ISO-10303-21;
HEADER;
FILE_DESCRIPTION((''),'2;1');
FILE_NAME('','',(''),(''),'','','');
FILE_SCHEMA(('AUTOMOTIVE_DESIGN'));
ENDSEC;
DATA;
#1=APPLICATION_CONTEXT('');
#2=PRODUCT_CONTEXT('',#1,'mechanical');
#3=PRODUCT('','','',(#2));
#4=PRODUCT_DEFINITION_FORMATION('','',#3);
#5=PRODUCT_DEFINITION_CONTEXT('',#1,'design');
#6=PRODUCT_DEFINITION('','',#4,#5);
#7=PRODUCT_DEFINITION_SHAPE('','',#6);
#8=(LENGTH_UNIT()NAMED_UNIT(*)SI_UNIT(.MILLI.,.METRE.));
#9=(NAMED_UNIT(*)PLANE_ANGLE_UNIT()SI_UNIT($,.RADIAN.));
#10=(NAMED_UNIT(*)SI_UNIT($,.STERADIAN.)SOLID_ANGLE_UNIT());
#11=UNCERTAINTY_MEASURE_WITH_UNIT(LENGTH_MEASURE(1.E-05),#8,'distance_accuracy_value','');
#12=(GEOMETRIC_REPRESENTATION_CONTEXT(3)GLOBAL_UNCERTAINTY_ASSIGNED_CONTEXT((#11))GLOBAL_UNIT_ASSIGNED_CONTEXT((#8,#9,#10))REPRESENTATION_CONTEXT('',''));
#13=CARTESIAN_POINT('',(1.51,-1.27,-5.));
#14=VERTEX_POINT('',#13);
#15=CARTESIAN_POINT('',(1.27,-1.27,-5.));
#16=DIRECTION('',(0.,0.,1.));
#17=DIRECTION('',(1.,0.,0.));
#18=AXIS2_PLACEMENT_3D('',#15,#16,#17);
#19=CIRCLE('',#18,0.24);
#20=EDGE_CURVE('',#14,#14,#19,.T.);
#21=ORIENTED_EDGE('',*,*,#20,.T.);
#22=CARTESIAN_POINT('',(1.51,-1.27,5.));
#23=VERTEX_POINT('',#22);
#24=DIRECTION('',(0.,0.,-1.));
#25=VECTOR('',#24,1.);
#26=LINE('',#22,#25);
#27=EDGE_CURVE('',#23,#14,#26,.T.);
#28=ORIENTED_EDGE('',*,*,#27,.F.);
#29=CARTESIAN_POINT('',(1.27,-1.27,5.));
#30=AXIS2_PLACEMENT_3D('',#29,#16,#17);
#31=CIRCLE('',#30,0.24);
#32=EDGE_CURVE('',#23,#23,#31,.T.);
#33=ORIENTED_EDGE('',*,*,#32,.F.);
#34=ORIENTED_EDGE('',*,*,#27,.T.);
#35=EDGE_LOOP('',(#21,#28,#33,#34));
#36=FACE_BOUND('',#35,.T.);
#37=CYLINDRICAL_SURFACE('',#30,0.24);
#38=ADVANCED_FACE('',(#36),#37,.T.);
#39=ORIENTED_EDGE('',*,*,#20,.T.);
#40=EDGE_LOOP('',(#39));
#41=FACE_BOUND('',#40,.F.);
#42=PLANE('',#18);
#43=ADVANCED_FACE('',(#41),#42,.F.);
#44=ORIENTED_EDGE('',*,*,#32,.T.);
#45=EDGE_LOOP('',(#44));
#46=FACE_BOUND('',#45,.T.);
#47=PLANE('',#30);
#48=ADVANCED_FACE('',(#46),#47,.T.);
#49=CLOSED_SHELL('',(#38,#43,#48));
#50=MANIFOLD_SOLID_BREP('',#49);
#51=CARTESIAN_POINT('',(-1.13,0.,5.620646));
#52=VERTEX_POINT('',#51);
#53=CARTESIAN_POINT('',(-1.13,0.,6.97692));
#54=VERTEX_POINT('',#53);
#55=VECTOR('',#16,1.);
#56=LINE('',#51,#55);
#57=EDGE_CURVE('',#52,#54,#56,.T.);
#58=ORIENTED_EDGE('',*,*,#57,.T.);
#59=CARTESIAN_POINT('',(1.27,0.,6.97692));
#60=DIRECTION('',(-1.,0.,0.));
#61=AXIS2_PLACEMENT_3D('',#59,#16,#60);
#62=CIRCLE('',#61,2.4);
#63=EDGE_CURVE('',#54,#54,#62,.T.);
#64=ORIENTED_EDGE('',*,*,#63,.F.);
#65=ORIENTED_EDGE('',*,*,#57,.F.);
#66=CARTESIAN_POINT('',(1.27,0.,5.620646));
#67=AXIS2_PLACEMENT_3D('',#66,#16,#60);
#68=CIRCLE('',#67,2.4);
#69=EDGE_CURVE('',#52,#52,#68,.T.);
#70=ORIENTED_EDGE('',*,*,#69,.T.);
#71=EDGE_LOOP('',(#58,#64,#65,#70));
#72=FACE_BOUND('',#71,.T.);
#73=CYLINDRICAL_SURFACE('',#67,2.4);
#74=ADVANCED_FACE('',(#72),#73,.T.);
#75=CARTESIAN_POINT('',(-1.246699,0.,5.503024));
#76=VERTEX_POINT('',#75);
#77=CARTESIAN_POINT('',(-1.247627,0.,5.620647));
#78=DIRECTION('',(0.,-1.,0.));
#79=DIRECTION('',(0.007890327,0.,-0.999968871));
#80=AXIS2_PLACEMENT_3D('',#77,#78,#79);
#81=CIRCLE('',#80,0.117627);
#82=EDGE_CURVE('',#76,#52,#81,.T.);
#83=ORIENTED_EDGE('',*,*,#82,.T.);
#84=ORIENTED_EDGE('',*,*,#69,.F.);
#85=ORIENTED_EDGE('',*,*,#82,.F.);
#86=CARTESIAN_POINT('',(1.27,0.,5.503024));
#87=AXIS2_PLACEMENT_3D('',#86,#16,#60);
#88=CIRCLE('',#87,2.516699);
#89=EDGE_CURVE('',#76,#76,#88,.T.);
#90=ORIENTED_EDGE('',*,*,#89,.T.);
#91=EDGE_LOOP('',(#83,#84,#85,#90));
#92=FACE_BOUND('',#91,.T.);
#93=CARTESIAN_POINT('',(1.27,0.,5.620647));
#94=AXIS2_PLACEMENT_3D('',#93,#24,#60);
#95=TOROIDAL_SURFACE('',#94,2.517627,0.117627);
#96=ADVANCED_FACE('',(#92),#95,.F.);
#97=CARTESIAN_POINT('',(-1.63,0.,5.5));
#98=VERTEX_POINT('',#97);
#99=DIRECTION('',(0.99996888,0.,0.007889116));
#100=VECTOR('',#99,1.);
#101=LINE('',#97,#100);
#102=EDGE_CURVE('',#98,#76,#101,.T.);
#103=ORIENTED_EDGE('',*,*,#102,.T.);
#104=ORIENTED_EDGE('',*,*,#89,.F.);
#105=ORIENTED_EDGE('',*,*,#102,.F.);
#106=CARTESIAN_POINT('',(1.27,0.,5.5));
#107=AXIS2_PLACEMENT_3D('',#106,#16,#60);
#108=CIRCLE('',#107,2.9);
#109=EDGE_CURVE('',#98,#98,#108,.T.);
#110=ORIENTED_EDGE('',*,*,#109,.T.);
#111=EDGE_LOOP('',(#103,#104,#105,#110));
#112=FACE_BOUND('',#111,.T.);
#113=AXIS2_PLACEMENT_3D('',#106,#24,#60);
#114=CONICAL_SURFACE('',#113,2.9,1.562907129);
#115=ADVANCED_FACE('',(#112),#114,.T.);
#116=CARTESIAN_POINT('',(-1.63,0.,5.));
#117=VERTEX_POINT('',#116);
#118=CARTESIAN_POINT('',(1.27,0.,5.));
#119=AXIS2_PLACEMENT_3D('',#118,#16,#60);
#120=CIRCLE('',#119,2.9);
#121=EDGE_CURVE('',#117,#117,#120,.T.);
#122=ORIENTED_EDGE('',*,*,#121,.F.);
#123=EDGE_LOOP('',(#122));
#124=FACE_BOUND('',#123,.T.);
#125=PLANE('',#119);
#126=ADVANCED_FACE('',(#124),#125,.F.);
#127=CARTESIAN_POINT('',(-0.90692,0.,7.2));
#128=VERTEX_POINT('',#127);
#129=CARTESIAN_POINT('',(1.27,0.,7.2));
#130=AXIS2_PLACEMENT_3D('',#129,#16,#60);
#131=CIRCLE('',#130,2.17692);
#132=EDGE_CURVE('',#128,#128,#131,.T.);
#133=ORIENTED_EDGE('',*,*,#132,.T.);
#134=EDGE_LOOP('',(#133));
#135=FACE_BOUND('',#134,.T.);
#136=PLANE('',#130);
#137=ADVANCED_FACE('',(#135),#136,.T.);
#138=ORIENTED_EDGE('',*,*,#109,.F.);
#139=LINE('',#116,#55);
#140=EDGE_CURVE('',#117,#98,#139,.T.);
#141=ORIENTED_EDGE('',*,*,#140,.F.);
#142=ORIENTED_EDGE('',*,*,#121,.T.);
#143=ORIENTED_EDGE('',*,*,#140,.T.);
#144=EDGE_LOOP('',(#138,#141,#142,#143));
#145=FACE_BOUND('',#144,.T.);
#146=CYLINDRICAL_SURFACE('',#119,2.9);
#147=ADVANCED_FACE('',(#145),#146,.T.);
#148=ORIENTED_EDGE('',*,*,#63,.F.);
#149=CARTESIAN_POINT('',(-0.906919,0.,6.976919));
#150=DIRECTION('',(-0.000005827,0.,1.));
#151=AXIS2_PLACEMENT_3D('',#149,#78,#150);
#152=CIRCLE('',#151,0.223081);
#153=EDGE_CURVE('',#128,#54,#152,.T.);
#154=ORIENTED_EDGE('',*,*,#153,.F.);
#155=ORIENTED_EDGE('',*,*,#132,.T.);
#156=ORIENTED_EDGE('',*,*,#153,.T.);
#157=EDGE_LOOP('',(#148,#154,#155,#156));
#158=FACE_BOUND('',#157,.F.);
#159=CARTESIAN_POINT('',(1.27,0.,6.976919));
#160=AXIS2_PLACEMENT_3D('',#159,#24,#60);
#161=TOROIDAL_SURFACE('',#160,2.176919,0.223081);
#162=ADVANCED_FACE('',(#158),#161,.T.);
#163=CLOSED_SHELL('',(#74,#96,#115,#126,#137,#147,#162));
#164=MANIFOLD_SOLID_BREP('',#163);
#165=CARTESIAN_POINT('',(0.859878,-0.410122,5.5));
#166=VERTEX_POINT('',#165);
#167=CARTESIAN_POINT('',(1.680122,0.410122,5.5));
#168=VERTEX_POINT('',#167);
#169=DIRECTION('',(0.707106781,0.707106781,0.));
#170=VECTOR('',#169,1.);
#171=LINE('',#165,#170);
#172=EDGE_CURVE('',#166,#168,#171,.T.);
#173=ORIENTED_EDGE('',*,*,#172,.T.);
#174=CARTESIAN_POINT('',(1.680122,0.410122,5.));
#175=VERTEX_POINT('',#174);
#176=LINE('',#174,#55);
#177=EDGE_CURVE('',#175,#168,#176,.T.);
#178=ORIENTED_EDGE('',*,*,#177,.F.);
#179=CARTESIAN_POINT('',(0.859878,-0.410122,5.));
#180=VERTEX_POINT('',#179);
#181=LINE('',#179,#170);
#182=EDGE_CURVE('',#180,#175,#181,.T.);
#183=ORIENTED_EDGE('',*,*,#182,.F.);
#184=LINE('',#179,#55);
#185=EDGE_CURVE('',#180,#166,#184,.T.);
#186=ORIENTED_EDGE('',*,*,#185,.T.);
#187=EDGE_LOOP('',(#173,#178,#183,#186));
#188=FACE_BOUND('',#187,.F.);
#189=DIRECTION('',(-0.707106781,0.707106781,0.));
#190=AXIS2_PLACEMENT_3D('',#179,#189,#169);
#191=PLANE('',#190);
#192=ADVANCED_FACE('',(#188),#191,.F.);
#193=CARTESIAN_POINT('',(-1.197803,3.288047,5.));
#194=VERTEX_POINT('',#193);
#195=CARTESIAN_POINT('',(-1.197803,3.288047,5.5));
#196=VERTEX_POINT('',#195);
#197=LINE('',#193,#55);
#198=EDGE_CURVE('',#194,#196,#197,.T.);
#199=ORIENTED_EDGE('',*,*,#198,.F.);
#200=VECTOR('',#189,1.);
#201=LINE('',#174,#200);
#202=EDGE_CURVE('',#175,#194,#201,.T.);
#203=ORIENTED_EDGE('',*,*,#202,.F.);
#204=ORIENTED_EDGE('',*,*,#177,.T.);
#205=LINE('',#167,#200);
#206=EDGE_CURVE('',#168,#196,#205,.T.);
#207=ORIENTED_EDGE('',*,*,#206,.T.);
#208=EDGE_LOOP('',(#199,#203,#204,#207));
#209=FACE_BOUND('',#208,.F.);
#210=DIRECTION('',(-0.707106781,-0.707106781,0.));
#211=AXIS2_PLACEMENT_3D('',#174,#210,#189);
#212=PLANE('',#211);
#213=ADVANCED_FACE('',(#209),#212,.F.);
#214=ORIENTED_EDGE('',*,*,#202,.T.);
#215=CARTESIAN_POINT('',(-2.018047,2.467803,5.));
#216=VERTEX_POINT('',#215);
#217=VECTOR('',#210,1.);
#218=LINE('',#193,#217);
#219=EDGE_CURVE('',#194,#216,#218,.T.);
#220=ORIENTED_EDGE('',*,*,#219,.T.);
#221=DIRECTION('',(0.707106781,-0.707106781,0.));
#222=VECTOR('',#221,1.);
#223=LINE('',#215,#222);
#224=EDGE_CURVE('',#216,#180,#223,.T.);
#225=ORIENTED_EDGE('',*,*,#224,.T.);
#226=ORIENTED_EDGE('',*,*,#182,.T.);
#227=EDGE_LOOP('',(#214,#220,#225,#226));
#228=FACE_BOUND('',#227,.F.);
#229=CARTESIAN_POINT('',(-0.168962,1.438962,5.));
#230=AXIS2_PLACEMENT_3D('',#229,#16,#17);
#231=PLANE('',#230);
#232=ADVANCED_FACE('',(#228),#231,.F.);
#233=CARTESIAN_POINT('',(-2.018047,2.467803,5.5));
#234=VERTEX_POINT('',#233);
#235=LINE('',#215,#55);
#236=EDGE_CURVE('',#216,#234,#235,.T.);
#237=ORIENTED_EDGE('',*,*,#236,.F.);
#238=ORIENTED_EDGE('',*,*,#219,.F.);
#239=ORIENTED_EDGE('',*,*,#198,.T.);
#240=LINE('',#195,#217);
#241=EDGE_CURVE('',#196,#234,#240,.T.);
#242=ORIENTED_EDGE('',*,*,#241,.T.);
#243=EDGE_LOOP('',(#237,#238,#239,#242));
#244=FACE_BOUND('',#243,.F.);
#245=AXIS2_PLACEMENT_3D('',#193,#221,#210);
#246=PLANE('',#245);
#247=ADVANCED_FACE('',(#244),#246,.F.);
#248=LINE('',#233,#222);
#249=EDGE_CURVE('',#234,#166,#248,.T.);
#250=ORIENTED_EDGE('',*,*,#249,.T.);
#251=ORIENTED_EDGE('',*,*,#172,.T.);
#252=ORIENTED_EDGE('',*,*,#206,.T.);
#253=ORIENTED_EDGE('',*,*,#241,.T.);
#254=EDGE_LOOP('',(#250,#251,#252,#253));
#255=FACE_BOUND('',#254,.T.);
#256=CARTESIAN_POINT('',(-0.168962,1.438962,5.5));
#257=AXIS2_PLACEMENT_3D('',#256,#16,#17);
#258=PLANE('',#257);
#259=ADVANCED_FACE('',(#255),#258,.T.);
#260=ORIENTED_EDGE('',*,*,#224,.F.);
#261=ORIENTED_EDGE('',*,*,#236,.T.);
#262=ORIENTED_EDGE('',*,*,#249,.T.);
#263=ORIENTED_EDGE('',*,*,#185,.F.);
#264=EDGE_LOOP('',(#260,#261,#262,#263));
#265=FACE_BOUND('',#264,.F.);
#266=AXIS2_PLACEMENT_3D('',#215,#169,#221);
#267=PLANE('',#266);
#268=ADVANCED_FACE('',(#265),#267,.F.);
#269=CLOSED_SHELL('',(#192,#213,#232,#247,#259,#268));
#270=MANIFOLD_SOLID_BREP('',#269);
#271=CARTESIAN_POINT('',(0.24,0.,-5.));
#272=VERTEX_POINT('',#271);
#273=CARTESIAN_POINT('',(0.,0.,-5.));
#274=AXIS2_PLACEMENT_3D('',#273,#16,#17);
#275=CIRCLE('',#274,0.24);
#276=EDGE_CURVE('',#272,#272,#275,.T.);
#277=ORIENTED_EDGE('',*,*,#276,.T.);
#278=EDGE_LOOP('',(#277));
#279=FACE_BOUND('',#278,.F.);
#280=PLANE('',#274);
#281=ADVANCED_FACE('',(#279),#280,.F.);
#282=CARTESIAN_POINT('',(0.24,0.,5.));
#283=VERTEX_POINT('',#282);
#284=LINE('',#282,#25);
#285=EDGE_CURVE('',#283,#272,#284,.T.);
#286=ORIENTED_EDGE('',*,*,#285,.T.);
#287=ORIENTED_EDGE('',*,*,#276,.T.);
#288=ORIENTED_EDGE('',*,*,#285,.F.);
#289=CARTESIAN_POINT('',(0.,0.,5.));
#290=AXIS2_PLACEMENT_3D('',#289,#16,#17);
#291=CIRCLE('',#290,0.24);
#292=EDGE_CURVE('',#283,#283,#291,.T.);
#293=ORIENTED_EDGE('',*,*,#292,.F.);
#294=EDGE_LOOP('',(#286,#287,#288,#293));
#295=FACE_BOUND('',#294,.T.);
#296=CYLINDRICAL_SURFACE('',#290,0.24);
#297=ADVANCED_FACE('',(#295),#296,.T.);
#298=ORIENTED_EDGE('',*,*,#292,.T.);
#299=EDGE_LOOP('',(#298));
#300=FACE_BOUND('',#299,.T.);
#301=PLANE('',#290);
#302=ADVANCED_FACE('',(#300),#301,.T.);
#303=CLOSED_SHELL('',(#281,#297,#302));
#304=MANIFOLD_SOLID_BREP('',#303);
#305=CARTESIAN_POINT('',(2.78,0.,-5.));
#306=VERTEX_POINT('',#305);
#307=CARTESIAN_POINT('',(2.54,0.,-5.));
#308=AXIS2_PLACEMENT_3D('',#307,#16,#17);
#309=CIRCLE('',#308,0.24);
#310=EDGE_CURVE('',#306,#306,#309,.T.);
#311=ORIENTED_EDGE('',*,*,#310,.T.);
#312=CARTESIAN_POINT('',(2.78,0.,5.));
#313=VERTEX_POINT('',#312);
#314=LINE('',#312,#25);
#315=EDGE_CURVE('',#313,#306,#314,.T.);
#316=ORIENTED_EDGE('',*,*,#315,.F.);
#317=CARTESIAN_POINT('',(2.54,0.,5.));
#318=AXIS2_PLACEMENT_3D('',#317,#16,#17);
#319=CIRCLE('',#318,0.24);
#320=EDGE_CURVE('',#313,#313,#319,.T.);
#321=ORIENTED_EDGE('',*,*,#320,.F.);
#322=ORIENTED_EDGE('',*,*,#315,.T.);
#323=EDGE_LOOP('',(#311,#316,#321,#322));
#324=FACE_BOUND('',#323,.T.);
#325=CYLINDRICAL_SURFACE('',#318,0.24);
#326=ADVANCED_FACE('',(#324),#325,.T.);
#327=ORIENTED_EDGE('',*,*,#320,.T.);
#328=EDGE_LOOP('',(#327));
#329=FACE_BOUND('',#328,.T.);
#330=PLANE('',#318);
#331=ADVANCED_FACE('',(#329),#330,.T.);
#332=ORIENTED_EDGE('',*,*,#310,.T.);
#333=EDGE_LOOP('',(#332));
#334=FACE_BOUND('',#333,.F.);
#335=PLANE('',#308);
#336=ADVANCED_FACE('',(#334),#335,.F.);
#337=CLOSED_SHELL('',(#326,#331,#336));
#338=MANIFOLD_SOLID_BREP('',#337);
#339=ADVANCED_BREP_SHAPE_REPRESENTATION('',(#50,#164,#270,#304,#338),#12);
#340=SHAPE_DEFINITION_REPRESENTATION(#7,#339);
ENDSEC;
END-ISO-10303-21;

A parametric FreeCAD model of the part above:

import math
import FreeCAD as App
import Part
import Sketcher
Q = App.Units.Quantity

doc = App.newDocument("Part")
body = doc.addObject("PartDesign::Body", "Body")
body.AllowCompound = True

# Sketch on XY plane
sketch1 = body.newObject("Sketcher::SketchObject", "Sketch")
sketch1.AttachmentSupport = (doc.getObject("XY_Plane"), [""])
sketch1.MapMode = "FlatFace"
sketch1.AttachmentOffset = App.Placement(App.Vector(0, 0, 5), App.Rotation())
sketch1.addGeometry(Part.Circle(App.Vector(0, 0, 0), App.Vector(0, 0, 1), 0.24), False)
sketch1.addGeometry(Part.Circle(App.Vector(2.54, 0, 0), App.Vector(0, 0, 1), 0.24), False)
sketch1.addGeometry(Part.Circle(App.Vector(1.27, -1.27, 0), App.Vector(0, 0, 1), 0.24), False)
sketch1.addConstraint(Sketcher.Constraint("Coincident", 0, 3, -1, 1))
sketch1.addConstraint(Sketcher.Constraint("Equal", 0, 1))
sketch1.addConstraint(Sketcher.Constraint("Equal", 1, 2))
sketch1.addConstraint(Sketcher.Constraint("PointOnObject", 1, 3, -1))
sketch1.addConstraint(Sketcher.Constraint("Diameter", 0, 0.48))
sketch1.addConstraint(Sketcher.Constraint("DistanceX", -1, 1, 1, 3, 2.54))
sketch1.addConstraint(Sketcher.Constraint("DistanceX", -1, 1, 2, 3, 1.27))
sketch1.addConstraint(Sketcher.Constraint("DistanceY", 2, 3, -1, 1, 1.27))
pad1 = body.newObject("PartDesign::Pad", "Pad")
pad1.Profile = sketch1
pad1.Length = 10
pad1.Reversed = True
body2 = doc.addObject("PartDesign::Body", "Body001")

# Sketch on XZ plane
sketch2 = body2.newObject("Sketcher::SketchObject", "Sketch001")
sketch2.AttachmentSupport = (doc.getObject("XZ_Plane001"), [""])
sketch2.MapMode = "FlatFace"
sketch2.addGeometry(Part.LineSegment(App.Vector(-1.63, 5, 0), App.Vector(1.27, 5, 0)), False)
sketch2.addGeometry(Part.LineSegment(App.Vector(1.27, 5, 0), App.Vector(1.27, 7.2, 0)), False)
sketch2.addGeometry(Part.LineSegment(App.Vector(1.27, 7.2, 0), App.Vector(-0.90692, 7.2, 0)), False)
sketch2.addGeometry(Part.ArcOfCircle(Part.Circle(App.Vector(-0.906919, 6.976919, 0), App.Vector(0, 0, 1), 0.223081), math.radians(90.000334), math.radians(179.999666)), False)
sketch2.addGeometry(Part.LineSegment(App.Vector(-1.13, 6.97692, 0), App.Vector(-1.13, 5.620646, 0)), False)
sketch2.addGeometry(Part.ArcOfCircle(Part.Circle(App.Vector(-1.247627, 5.620647, 0), App.Vector(0, 0, 1), 0.117627), math.radians(-89.547913), math.radians(-0.000709)), False)
sketch2.addGeometry(Part.LineSegment(App.Vector(-1.246699, 5.503024, 0), App.Vector(-1.63, 5.5, 0)), False)
sketch2.addGeometry(Part.LineSegment(App.Vector(-1.63, 5.5, 0), App.Vector(-1.63, 5, 0)), False)
sketch2.addGeometry(Part.LineSegment(App.Vector(1.27, 5, 0), App.Vector(1.27, 7.2, 0)), True)  # axis
sketch2.addConstraint(Sketcher.Constraint("Coincident", 0, 2, 1, 1))
sketch2.addConstraint(Sketcher.Constraint("Coincident", 1, 2, 2, 1))
sketch2.addConstraint(Sketcher.Constraint("Coincident", 2, 2, 3, 1))
sketch2.addConstraint(Sketcher.Constraint("Coincident", 3, 2, 4, 1))
sketch2.addConstraint(Sketcher.Constraint("Coincident", 4, 2, 5, 2))
sketch2.addConstraint(Sketcher.Constraint("Tangent", 5, 1, 6, 1))
sketch2.addConstraint(Sketcher.Constraint("Coincident", 6, 2, 7, 1))
sketch2.addConstraint(Sketcher.Constraint("Coincident", 7, 2, 0, 1))
sketch2.addConstraint(Sketcher.Constraint("Horizontal", 0))
sketch2.addConstraint(Sketcher.Constraint("Vertical", 1))
sketch2.addConstraint(Sketcher.Constraint("Horizontal", 2))
sketch2.addConstraint(Sketcher.Constraint("Vertical", 4))
sketch2.addConstraint(Sketcher.Constraint("Vertical", 7))
sketch2.addConstraint(Sketcher.Constraint("Vertical", 8))
sketch2.addConstraint(Sketcher.Constraint("Coincident", 8, 1, 0, 2))
sketch2.addConstraint(Sketcher.Constraint("Horizontal", 5, 3, 4, 2))
sketch2.addConstraint(Sketcher.Constraint("Horizontal", 2, 2, 8, 2))
sketch2.addConstraint(Sketcher.Constraint("Vertical", 3, 3, 2, 2))
sketch2.addConstraint(Sketcher.Constraint("DistanceX", 0, 1, 0, 2, 2.9))
sketch2.addConstraint(Sketcher.Constraint("DistanceY", 1, 1, 1, 2, 2.2))
sketch2.addConstraint(Sketcher.Constraint("DistanceY", 7, 2, 7, 1, 0.5))
sketch2.addConstraint(Sketcher.Constraint("DistanceY", -1, 1, 0, 2, 5.0))
sketch2.addConstraint(Sketcher.Constraint("DistanceX", 3, 2, 1, 2, 2.4))
sketch2.addConstraint(Sketcher.Constraint("DistanceX", -1, 1, 0, 2, 1.27))
sketch2.addConstraint(Sketcher.Constraint("Radius", 3, 0.223081))
sketch2.addConstraint(Sketcher.Constraint("Radius", 5, 0.117627))
sketch2.addConstraint(Sketcher.Constraint("DistanceX", 5, 1, -1, 1, 1.246699))
sketch2.addConstraint(Sketcher.Constraint("DistanceY", 4, 2, 4, 1, 1.356274))
revolution = body2.newObject("PartDesign::Revolution", "Revolution")
revolution.Profile = sketch2
revolution.ReferenceAxis = (sketch2, ["Axis0"])
revolution.Angle = 360
body3 = doc.addObject("PartDesign::Body", "Body002")

# Sketch on XY plane
sketch3 = body3.newObject("Sketcher::SketchObject", "Sketch002")
sketch3.AttachmentSupport = (doc.getObject("XY_Plane002"), [""])
sketch3.MapMode = "FlatFace"
sketch3.AttachmentOffset = App.Placement(App.Vector(0, 0, 5), App.Rotation())
sketch3.addGeometry(Part.LineSegment(App.Vector(1.680122, 0.410122, 0), App.Vector(-1.197803, 3.288047, 0)), False)
sketch3.addGeometry(Part.LineSegment(App.Vector(-1.197803, 3.288047, 0), App.Vector(-2.018047, 2.467803, 0)), False)
sketch3.addGeometry(Part.LineSegment(App.Vector(-2.018047, 2.467803, 0), App.Vector(0.859878, -0.410122, 0)), False)
sketch3.addGeometry(Part.LineSegment(App.Vector(0.859878, -0.410122, 0), App.Vector(1.680122, 0.410122, 0)), False)
sketch3.addConstraint(Sketcher.Constraint("Coincident", 0, 2, 1, 1))
sketch3.addConstraint(Sketcher.Constraint("Coincident", 1, 2, 2, 1))
sketch3.addConstraint(Sketcher.Constraint("Coincident", 2, 2, 3, 1))
sketch3.addConstraint(Sketcher.Constraint("Coincident", 3, 2, 0, 1))
sketch3.addConstraint(Sketcher.Constraint("Perpendicular", 0, 1))
sketch3.addConstraint(Sketcher.Constraint("Perpendicular", 1, 2))
sketch3.addConstraint(Sketcher.Constraint("Perpendicular", 2, 3))
sketch3.addConstraint(Sketcher.Constraint("Angle", 0, Q("135 deg")))
sketch3.addConstraint(Sketcher.Constraint("Distance", 0, 4.070001))
sketch3.addConstraint(Sketcher.Constraint("Distance", 1, 1.16))
sketch3.addConstraint(Sketcher.Constraint("DistanceX", -1, 1, 2, 2, 0.859878))
sketch3.addConstraint(Sketcher.Constraint("DistanceY", -1, 1, 0, 2, 3.288047))
pad2 = body3.newObject("PartDesign::Pad", "Pad001")
pad2.Profile = sketch3
pad2.Length = 0.5

doc.recompute()
